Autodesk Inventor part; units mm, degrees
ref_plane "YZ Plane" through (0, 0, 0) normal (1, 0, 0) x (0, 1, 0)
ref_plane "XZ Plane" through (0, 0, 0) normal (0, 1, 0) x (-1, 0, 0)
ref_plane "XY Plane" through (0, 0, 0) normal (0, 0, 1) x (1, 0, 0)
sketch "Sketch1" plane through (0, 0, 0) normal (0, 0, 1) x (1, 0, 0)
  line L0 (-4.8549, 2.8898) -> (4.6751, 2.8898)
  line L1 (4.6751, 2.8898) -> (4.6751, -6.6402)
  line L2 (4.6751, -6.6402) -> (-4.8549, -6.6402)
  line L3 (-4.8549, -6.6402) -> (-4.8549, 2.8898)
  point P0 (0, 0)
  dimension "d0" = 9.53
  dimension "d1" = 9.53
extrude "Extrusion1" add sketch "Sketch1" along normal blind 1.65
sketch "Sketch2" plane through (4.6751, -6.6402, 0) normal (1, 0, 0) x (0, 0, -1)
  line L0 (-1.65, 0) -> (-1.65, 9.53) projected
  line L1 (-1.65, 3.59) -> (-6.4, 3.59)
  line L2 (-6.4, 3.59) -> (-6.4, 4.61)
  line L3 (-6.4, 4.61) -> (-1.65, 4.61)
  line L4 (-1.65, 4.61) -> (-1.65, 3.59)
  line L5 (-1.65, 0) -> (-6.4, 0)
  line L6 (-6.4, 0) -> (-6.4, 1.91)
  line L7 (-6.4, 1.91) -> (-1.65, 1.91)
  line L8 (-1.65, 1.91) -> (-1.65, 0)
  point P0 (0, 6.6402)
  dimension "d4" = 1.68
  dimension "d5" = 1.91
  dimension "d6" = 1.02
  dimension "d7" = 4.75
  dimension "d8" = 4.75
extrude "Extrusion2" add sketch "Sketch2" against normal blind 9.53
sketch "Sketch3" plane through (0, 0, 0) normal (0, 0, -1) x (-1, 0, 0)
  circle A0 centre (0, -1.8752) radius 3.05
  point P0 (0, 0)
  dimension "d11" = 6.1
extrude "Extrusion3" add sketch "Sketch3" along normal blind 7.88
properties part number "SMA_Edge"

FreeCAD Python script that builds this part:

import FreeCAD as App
import Part
import Sketcher
from FreeCAD import Vector


def add_polygon(sketch, points):
    """Adds a closed chain of lines whose ends are joined by coincident constraints."""
    first, n = sketch.GeometryCount, len(points)
    for a, b in zip(points, points[1:] + points[:1]):
        sketch.addGeometry(Part.LineSegment(App.Vector(*a, 0), App.Vector(*b, 0)), False)
    for i in range(n):
        sketch.addConstraint(Sketcher.Constraint("Coincident", first + i, 2, first + (i + 1) % n, 1))

doc = App.newDocument("Part")
body = doc.addObject("PartDesign::Body", "Body")

# Sketch on XY plane
sketch1 = body.newObject("Sketcher::SketchObject", "Sketch")
sketch1.AttachmentSupport = (doc.getObject("XY_Plane"), [""])
sketch1.MapMode = "FlatFace"
add_polygon(sketch1, [(5, 3), (-5, 3), (-5, -7), (5, -7)])  # lines 0-3
sketch1.addConstraint(Sketcher.Constraint("Horizontal", 0))
sketch1.addConstraint(Sketcher.Constraint("Vertical", 1))
sketch1.addConstraint(Sketcher.Constraint("Horizontal", 2))
sketch1.addConstraint(Sketcher.Constraint("Vertical", 3))
sketch1.addConstraint(Sketcher.Constraint("Equal", 2, 1))
sketch1.addConstraint(Sketcher.Constraint("DistanceX", 0, 2, 0, 1, 9.53))
sketch1.addConstraint(Sketcher.Constraint("DistanceX", 0, 2, -1, 1, 4.855))
sketch1.addConstraint(Sketcher.Constraint("DistanceY", -1, 1, 0, 2, 2.8898))
pad1 = body.newObject("PartDesign::Pad", "Pad")
pad1.Profile = sketch1
pad1.Length = 1.65

# Sketch on YZ plane
sketch2 = body.newObject("Sketcher::SketchObject", "Sketch001")
sketch2.AttachmentSupport = (doc.getObject("YZ_Plane"), [""])
sketch2.MapMode = "FlatFace"
sketch2.AttachmentOffset = App.Placement(Vector(0, 0, 4.6751), App.Rotation())
add_polygon(sketch2, [(-6.6, 6.4), (-6.6, 1.6), (-4.7, 1.6), (-4.7, 6.4)])  # lines 0-3
add_polygon(sketch2, [(-3.1, 6.4), (-3.1, 1.6), (-2, 1.6), (-2, 6.4)])  # lines 4-7
sketch2.addConstraint(Sketcher.Constraint("Vertical", 0))
sketch2.addConstraint(Sketcher.Constraint("Horizontal", 1))
sketch2.addConstraint(Sketcher.Constraint("Vertical", 2))
sketch2.addConstraint(Sketcher.Constraint("Horizontal", 3))
sketch2.addConstraint(Sketcher.Constraint("Vertical", 4))
sketch2.addConstraint(Sketcher.Constraint("Horizontal", 5))
sketch2.addConstraint(Sketcher.Constraint("Vertical", 6))
sketch2.addConstraint(Sketcher.Constraint("Horizontal", 7))
sketch2.addConstraint(Sketcher.Constraint("Horizontal", 1, 2, 4, 2))
sketch2.addConstraint(Sketcher.Constraint("Horizontal", 3, 2, 6, 2))
sketch2.addConstraint(Sketcher.Constraint("DistanceX", 1, 1, 1, 2, 1.91))
sketch2.addConstraint(Sketcher.Constraint("DistanceX", 5, 1, 5, 2, 1.02))
sketch2.addConstraint(Sketcher.Constraint("DistanceY", 0, 2, 0, 1, 4.75))
sketch2.addConstraint(Sketcher.Constraint("DistanceX", 1, 2, 4, 2, 1.68))
sketch2.addConstraint(Sketcher.Constraint("DistanceY", -1, 1, 2, 2, 6.4))
sketch2.addConstraint(Sketcher.Constraint("DistanceX", 0, 2, -1, 1, 6.6402))
pad2 = body.newObject("PartDesign::Pad", "Pad001")
pad2.Profile = sketch2
pad2.Length = 9.53
pad2.Reversed = True

# Sketch on XY plane
sketch3 = body.newObject("Sketcher::SketchObject", "Sketch002")
sketch3.AttachmentSupport = (doc.getObject("XY_Plane"), [""])
sketch3.MapMode = "FlatFace"
sketch3.addGeometry(Part.Circle(Vector(0, -1.9, 0), Vector(0, 0, 1), 3), False)
sketch3.addConstraint(Sketcher.Constraint("PointOnObject", 0, 3, -2))
sketch3.addConstraint(Sketcher.Constraint("Diameter", 0, 6.1))
sketch3.addConstraint(Sketcher.Constraint("DistanceY", 0, 3, -1, 1, 1.8752))
pad3 = body.newObject("PartDesign::Pad", "Pad002")
pad3.Profile = sketch3
pad3.Length = 7.88
pad3.Reversed = True

doc.recompute()
